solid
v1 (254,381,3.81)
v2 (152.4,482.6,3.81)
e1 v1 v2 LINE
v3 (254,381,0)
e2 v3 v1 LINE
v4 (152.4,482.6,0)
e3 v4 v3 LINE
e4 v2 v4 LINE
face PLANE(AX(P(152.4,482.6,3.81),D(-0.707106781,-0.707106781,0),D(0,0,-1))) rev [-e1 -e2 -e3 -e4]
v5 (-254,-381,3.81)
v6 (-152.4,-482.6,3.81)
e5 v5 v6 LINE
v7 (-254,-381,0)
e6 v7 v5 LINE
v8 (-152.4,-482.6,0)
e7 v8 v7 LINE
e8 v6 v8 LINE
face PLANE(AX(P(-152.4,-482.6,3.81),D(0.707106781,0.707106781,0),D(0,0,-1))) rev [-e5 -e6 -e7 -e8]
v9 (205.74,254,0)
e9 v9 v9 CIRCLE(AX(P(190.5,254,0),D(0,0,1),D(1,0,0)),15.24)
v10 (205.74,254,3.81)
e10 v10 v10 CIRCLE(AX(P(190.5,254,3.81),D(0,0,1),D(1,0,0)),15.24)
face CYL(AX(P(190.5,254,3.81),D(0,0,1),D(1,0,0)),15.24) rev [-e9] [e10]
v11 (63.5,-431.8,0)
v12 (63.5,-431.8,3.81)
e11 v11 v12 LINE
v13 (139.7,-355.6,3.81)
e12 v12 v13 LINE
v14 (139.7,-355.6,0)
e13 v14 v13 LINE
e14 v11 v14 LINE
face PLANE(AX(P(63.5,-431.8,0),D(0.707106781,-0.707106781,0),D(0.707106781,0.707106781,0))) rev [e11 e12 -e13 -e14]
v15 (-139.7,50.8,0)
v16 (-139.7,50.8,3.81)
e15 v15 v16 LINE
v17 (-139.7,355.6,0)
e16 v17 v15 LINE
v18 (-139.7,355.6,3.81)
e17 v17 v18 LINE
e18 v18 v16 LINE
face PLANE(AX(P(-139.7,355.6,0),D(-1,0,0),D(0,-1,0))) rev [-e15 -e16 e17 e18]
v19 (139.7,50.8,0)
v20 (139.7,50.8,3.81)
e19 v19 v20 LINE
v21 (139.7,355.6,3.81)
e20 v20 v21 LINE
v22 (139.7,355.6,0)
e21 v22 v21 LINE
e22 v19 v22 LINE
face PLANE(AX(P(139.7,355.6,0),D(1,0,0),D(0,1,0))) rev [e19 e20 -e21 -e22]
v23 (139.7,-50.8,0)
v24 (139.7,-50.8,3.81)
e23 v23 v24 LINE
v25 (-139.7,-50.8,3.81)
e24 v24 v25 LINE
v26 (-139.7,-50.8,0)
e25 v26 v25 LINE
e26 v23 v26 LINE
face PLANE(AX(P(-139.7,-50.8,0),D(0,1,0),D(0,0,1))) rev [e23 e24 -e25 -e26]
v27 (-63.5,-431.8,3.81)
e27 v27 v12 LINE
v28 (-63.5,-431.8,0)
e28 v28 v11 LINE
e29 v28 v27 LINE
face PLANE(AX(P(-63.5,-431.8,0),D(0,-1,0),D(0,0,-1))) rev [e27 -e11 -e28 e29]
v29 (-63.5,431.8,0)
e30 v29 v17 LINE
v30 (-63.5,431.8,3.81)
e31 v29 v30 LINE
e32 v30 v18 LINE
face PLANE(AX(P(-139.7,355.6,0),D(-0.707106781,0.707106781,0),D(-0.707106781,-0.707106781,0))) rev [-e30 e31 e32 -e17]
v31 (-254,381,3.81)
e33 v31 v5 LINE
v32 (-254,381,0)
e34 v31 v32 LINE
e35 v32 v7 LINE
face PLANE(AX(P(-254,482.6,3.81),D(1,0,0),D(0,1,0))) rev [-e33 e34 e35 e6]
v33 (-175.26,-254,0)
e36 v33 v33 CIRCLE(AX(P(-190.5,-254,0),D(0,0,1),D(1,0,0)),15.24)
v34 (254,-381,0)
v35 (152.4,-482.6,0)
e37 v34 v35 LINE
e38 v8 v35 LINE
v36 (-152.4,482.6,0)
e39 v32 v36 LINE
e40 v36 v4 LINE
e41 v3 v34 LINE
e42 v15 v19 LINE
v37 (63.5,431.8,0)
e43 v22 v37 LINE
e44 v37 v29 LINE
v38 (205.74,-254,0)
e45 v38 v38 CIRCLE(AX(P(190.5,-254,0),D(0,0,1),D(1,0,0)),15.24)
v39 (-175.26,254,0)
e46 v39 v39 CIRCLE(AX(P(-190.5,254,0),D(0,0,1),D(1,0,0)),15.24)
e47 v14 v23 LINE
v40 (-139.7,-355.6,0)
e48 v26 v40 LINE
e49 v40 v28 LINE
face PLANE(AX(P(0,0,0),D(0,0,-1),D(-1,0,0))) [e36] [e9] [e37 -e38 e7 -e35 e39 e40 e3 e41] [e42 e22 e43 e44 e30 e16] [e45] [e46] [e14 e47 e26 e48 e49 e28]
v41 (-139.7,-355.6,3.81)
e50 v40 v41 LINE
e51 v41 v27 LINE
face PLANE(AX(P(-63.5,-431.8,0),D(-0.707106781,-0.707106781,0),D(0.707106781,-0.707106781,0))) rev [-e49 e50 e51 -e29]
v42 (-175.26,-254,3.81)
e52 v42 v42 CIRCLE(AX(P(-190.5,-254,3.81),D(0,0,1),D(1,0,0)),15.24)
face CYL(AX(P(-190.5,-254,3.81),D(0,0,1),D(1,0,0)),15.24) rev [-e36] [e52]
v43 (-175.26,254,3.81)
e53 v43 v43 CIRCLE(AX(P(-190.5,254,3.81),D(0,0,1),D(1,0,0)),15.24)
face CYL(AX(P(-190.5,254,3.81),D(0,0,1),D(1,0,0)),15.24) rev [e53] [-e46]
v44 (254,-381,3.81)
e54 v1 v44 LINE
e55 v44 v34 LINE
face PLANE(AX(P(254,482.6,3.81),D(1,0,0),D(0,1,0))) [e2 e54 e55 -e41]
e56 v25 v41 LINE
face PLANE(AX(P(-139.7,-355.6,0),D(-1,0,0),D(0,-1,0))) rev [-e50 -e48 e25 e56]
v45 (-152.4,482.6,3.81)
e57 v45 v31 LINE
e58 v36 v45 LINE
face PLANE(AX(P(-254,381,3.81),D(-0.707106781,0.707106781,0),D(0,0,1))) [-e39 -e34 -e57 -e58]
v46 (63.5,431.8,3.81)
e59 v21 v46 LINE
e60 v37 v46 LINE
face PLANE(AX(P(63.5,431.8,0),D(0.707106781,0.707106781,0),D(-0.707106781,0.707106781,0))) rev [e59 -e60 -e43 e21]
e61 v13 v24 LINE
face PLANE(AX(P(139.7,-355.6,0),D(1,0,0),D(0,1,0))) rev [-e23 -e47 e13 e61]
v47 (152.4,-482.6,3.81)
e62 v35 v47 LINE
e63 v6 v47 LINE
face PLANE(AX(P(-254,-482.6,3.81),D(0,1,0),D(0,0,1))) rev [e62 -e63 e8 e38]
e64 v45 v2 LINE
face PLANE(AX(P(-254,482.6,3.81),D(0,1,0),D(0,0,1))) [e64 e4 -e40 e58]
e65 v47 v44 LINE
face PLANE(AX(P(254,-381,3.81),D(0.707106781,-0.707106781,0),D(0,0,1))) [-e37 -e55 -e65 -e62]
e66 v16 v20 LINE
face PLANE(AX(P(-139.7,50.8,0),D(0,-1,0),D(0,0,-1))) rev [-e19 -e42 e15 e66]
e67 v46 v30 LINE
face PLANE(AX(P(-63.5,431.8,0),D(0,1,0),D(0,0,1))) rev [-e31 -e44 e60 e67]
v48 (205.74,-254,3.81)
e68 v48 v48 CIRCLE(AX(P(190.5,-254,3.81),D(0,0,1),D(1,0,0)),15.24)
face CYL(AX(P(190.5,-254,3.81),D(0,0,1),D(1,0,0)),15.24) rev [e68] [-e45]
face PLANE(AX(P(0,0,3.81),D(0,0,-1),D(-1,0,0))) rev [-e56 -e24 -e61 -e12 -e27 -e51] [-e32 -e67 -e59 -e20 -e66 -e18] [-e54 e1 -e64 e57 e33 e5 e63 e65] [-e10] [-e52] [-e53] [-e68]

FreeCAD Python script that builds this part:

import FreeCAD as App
import Part
import Sketcher
Q = App.Units.Quantity


def edges_at(feature, points):
    """Names of the edges that pass closest to the given points."""
    edges = feature.Shape.Edges
    near = lambda p: min(range(len(edges)), key=lambda i: edges[i].distToShape(Part.Vertex(*p))[0])
    return sorted({f"Edge{near(p) + 1}" for p in points})


def add_polygon(sketch, points):
    """Adds a closed chain of lines whose ends are joined by coincident constraints."""
    first, n = sketch.GeometryCount, len(points)
    for a, b in zip(points, points[1:] + points[:1]):
        sketch.addGeometry(Part.LineSegment(App.Vector(*a, 0), App.Vector(*b, 0)), False)
    for i in range(n):
        sketch.addConstraint(Sketcher.Constraint("Coincident", first + i, 2, first + (i + 1) % n, 1))

doc = App.newDocument("Part")
body = doc.addObject("PartDesign::Body", "Body")

# Sketch on XY plane
sketch1 = body.newObject("Sketcher::SketchObject", "Sketch")
sketch1.AttachmentSupport = (doc.getObject("XY_Plane"), [""])
sketch1.MapMode = "FlatFace"
add_polygon(sketch1, [(-254, 483), (-254, -483), (254, -483), (254, 483)])  # lines 0-3
sketch1.addConstraint([
    Sketcher.Constraint("Vertical", 0),
    Sketcher.Constraint("Horizontal", 1),
    Sketcher.Constraint("Vertical", 2),
    Sketcher.Constraint("Horizontal", 3),
    Sketcher.Constraint("Symmetric", 0, 2, 2, 2, -1, 1),
    Sketcher.Constraint("DistanceX", 1, 1, 1, 2, Q("20 in")),
    Sketcher.Constraint("DistanceY", 0, 2, 0, 1, Q("38 in")),
])
pad1 = body.newObject("PartDesign::Pad", "Pad")
pad1.Profile = sketch1
pad1.Length = Q("0.15 in")

# Sketch on XY plane
sketch2 = body.newObject("Sketcher::SketchObject", "Sketch001")
sketch2.AttachmentSupport = (doc.getObject("XY_Plane"), [""])
sketch2.MapMode = "FlatFace"
sketch2.AttachmentOffset = App.Placement(App.Vector(0, 0, 0.15 * 25.4), App.Rotation())
sketch2.addGeometry([
    Part.Circle(App.Vector(-190, 254, 0), App.Vector(0, 0, 1), 15),
    Part.Circle(App.Vector(190, 254, 0), App.Vector(0, 0, 1), 15),
    Part.Circle(App.Vector(190, -254, 0), App.Vector(0, 0, 1), 15),
    Part.Circle(App.Vector(-190, -254, 0), App.Vector(0, 0, 1), 15),
], False)
sketch2.addConstraint([
    Sketcher.Constraint("Equal", 0, 1),
    Sketcher.Constraint("Equal", 1, 2),
    Sketcher.Constraint("Equal", 2, 3),
    Sketcher.Constraint("Symmetric", 0, 3, 2, 3, -1, 1),
    Sketcher.Constraint("Symmetric", 1, 3, 3, 3, -1, 1),
    Sketcher.Constraint("Symmetric", 0, 3, 1, 3, -2),
    Sketcher.Constraint("Diameter", 0, Q("1.2 in")),
    Sketcher.Constraint("DistanceY", -1, 1, 0, 3, Q("10 in")),
    Sketcher.Constraint("DistanceX", 0, 3, 1, 3, Q("15 in")),
])
doc.recompute()
hole = body.newObject("PartDesign::Hole", "Hole")
hole.Profile = sketch2
hole.ThreadType = "None"
hole.Diameter = Q("1.2 in")
hole.DepthType = "ThroughAll"
doc.recompute()

chamfer = body.newObject("PartDesign::Chamfer", "Chamfer")
chamfer.Base = (hole, edges_at(hole, [
    (-254, 482.6, 1.905),
    (-254, -482.6, 1.905),
    (254, -482.6, 1.905),
    (254, 482.6, 1.905),
]))
chamfer.Size = Q("4 in")

# Sketch on XY plane
sketch3 = body.newObject("Sketcher::SketchObject", "Sketch002")
sketch3.AttachmentSupport = (doc.getObject("XY_Plane"), [""])
sketch3.MapMode = "FlatFace"
sketch3.AttachmentOffset = App.Placement(App.Vector(0, 0, 0.15 * 25.4), App.Rotation())
add_polygon(sketch3, [(64, 432), (-64, 432), (-140, 356), (-140, 51), (140, 51), (140, 356)])  # lines 0-5
add_polygon(sketch3, [(140, -356), (140, -51), (-140, -51), (-140, -356), (-64, -432), (64, -432)])  # lines 6-11
sketch3.addConstraint([
    Sketcher.Constraint("Horizontal", 0),
    Sketcher.Constraint("Vertical", 2),
    Sketcher.Constraint("Horizontal", 3),
    Sketcher.Constraint("Vertical", 4),
    Sketcher.Constraint("Vertical", 6),
    Sketcher.Constraint("Horizontal", 7),
    Sketcher.Constraint("Vertical", 8),
    Sketcher.Constraint("Horizontal", 10),
    Sketcher.Constraint("Symmetric", 2, 2, 6, 2, -1, 1),
    Sketcher.Constraint("Symmetric", 4, 2, 8, 2, -1, 1),
    Sketcher.Constraint("Symmetric", 5, 2, 9, 2, -1, 1),
    Sketcher.Constraint("Symmetric", 1, 2, 4, 2, -2),
    Sketcher.Constraint("Perpendicular", 1, 5),
    Sketcher.Constraint("Perpendicular", 9, 11),
    Sketcher.Constraint("Horizontal", 8, 2, 11, 2),
    Sketcher.Constraint("Vertical", 0, 2, 9, 2),
    Sketcher.Constraint("DistanceX", 0, 2, 0, 1, Q("5 in")),
    Sketcher.Constraint("DistanceX", 3, 1, 3, 2, Q("11 in")),
    Sketcher.Constraint("DistanceY", 2, 2, 2, 1, Q("12 in")),
    Sketcher.Constraint("DistanceY", -1, 1, 0, 2, Q("17 in")),
])
pocket1 = body.newObject("PartDesign::Pocket", "Pocket")
pocket1.Profile = sketch3
pocket1.Type = "ThroughAll"

doc.recompute()
